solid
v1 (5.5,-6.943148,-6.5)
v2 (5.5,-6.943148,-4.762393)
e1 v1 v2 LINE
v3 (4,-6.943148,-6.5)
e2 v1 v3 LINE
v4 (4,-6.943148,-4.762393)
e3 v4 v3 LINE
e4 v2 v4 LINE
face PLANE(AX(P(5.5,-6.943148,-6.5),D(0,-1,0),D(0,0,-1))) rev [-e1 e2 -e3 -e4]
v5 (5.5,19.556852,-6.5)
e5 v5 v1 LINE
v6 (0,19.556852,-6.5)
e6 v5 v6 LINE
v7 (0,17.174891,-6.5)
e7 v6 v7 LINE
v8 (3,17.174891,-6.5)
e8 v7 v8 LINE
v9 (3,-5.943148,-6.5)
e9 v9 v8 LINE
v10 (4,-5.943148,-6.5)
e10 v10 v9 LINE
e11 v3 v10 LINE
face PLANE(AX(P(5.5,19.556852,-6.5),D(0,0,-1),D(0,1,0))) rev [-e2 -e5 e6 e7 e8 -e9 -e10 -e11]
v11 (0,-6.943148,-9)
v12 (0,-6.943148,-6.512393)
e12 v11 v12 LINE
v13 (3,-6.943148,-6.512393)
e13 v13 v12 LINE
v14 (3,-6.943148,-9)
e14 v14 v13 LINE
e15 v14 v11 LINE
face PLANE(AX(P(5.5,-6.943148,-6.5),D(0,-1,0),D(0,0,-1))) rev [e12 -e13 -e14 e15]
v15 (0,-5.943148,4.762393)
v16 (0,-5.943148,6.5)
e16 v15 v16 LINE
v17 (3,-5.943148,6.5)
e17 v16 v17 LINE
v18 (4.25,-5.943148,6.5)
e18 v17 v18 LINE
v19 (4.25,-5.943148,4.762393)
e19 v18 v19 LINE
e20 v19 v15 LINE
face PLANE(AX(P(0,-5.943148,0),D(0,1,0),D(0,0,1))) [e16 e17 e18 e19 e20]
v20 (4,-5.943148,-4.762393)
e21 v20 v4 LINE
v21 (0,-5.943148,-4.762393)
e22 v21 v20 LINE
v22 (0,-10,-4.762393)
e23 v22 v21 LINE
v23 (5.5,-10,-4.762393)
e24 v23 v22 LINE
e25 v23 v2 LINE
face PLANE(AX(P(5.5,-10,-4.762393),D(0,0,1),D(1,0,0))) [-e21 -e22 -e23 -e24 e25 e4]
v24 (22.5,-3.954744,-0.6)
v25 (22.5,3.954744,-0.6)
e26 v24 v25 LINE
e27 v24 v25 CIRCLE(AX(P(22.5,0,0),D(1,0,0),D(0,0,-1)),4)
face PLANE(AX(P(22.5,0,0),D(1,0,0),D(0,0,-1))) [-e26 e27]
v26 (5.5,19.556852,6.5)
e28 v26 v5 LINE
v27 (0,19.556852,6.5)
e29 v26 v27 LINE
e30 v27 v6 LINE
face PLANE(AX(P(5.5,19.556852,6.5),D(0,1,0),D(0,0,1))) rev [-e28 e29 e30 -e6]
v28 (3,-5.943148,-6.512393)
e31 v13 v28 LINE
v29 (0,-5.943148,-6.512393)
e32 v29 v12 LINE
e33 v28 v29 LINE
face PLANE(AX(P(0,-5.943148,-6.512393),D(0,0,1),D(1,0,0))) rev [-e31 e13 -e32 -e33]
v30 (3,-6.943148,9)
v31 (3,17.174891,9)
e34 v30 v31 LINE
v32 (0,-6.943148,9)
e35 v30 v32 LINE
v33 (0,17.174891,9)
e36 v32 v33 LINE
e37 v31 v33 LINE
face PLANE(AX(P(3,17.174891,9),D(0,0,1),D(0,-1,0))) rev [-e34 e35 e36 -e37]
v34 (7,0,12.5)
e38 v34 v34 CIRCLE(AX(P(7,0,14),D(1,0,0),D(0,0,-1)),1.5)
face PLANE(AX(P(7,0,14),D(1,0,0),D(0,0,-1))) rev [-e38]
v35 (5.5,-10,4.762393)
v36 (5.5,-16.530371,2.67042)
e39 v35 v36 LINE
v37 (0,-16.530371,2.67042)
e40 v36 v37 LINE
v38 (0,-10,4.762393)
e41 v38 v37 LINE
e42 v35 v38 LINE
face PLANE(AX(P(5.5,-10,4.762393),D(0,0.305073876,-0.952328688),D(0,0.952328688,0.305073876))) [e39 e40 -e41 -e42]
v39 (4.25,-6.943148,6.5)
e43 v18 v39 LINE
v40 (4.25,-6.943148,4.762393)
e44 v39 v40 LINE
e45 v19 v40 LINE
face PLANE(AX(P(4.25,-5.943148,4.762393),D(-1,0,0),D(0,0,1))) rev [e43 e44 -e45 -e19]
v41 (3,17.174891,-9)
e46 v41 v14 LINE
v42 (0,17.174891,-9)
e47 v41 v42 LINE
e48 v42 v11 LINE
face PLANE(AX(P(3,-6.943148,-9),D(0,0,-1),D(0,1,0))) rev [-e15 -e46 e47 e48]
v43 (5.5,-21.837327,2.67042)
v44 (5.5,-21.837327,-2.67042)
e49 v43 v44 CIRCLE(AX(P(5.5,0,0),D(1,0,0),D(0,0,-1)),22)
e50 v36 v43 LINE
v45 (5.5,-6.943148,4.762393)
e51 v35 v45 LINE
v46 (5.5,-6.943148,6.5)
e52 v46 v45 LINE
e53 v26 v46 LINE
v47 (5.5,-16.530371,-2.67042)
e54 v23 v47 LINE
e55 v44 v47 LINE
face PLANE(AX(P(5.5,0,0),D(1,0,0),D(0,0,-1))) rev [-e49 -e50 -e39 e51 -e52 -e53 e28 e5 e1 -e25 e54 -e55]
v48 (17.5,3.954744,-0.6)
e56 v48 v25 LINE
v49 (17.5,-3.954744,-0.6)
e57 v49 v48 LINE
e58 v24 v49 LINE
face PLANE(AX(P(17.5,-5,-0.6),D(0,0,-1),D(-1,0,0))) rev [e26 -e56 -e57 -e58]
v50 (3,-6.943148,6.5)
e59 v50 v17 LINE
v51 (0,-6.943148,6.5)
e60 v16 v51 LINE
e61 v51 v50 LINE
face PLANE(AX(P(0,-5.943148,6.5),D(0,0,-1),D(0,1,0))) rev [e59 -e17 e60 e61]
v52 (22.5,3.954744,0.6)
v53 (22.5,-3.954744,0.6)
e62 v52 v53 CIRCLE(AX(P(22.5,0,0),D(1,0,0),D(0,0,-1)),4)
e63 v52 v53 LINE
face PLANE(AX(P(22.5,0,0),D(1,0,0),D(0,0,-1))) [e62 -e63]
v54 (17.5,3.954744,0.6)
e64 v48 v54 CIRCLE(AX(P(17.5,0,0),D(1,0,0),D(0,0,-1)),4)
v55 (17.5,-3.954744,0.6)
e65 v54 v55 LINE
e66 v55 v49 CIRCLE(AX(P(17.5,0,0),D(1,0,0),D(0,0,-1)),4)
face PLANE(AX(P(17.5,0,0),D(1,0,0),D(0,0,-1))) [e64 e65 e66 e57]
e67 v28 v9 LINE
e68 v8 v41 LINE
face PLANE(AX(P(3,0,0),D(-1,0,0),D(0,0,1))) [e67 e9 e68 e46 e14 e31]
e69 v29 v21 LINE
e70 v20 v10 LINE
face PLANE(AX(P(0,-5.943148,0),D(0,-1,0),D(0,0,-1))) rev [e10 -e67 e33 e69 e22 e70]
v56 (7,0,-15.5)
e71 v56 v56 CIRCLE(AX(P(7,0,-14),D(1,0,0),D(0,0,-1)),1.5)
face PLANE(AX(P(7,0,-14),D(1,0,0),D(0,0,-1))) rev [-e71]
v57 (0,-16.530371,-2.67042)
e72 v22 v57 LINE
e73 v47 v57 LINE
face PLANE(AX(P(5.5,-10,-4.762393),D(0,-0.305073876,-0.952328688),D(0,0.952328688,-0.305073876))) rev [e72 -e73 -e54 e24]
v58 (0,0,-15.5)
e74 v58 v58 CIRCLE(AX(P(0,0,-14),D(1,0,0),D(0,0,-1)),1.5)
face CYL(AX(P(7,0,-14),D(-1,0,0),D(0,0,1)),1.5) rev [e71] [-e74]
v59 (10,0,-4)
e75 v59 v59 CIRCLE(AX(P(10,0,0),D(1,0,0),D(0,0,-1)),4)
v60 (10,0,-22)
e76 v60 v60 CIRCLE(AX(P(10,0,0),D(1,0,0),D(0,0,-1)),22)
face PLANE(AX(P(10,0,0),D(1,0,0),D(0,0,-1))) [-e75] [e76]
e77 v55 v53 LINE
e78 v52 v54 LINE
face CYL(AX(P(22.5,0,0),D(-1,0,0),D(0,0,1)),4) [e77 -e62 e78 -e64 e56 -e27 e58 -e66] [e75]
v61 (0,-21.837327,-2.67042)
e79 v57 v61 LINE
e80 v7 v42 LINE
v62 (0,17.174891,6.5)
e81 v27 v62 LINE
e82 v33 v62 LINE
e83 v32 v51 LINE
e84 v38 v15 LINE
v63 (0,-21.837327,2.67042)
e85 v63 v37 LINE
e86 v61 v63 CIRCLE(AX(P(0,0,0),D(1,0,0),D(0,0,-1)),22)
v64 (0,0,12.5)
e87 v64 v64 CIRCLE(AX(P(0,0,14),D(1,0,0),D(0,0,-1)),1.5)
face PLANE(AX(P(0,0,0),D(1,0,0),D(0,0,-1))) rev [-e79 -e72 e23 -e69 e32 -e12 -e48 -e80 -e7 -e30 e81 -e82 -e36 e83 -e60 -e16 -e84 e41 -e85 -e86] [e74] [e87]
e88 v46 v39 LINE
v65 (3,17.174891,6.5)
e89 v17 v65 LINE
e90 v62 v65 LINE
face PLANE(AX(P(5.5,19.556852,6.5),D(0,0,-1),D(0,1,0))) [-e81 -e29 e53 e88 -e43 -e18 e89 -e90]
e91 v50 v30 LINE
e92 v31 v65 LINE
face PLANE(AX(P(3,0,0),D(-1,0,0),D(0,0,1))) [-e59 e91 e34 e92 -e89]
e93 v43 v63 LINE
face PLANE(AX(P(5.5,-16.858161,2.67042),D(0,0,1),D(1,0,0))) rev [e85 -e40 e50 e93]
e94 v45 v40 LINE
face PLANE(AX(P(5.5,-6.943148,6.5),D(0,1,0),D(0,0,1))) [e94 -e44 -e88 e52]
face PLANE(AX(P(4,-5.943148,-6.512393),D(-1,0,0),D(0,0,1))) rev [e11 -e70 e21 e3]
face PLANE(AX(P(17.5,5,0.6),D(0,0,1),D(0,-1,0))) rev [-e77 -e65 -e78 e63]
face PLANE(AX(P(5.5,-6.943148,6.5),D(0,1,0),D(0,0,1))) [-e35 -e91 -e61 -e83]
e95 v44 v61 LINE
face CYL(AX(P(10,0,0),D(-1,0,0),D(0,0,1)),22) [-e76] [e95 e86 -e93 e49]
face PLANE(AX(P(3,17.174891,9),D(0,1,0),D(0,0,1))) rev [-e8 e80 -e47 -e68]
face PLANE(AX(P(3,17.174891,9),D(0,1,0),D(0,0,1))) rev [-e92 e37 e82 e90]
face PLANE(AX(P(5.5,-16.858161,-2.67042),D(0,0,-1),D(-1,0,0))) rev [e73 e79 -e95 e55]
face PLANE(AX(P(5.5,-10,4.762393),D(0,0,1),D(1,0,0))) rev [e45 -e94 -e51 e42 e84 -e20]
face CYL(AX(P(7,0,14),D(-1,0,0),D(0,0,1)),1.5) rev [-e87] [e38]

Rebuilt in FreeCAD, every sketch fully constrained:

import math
import FreeCAD as App
import Part
import Sketcher
from FreeCAD import Vector
Q = App.Units.Quantity


def add_polygon(sketch, points):
    """Adds a closed chain of lines whose ends are joined by coincident constraints."""
    first, n = sketch.GeometryCount, len(points)
    for a, b in zip(points, points[1:] + points[:1]):
        sketch.addGeometry(Part.LineSegment(App.Vector(*a, 0), App.Vector(*b, 0)), False)
    for i in range(n):
        sketch.addConstraint(Sketcher.Constraint("Coincident", first + i, 2, first + (i + 1) % n, 1))

doc = App.newDocument("Part")
body = doc.addObject("PartDesign::Body", "Body")

# Sketch on YZ plane
sketch1 = body.newObject("Sketcher::SketchObject", "Sketch")
sketch1.AttachmentSupport = (doc.getObject("YZ_Plane"), [""])
sketch1.MapMode = "FlatFace"
sketch1.addGeometry(Part.Circle(Vector(0, 0, 0), Vector(0, 0, 1), 22), False)
sketch1.addConstraint([
    Sketcher.Constraint("Coincident", 0, 3, -1, 1),
    Sketcher.Constraint("Diameter", 0, Q("44 mm")),
])
pad1 = body.newObject("PartDesign::Pad", "Pad")
pad1.Profile = sketch1
pad1.Length = 10

# Sketch on YZ plane
sketch2 = body.newObject("Sketcher::SketchObject", "Sketch001")
sketch2.AttachmentSupport = (doc.getObject("YZ_Plane"), [""])
sketch2.MapMode = "FlatFace"
sketch2.addGeometry([
    Part.LineSegment(Vector(-10, 4.8, 0), Vector(-16.5, 2.7, 0)),  # 0
    Part.LineSegment(Vector(-16.5, 2.7, 0), Vector(-21.8, 2.7, 0)),  # 1
    Part.ArcOfCircle(Part.Circle(Vector(0, 0, 0), Vector(0, 0, 1), 22), math.radians(173.03), math.radians(177.39)),  # 2
    Part.LineSegment(Vector(-22, 1, 0), Vector(-25.2, 0, 0)),  # 3
    Part.LineSegment(Vector(-25.2, 0, 0), Vector(-22, -1, 0)),  # 4
    Part.ArcOfCircle(Part.Circle(Vector(0, 0, 0), Vector(0, 0, 1), 22), math.radians(-177.39), math.radians(-173.03)),  # 5
    Part.LineSegment(Vector(-21.8, -2.7, 0), Vector(-16.5, -2.7, 0)),  # 6
    Part.LineSegment(Vector(-16.5, -2.7, 0), Vector(-10, -4.8, 0)),  # 7
    Part.LineSegment(Vector(-10, -4.8, 0), Vector(-6.9, -4.8, 0)),  # 8
    Part.LineSegment(Vector(-6.9, -4.8, 0), Vector(-6.9, -6.5, 0)),  # 9
    Part.LineSegment(Vector(-6.9, -6.5, 0), Vector(19.6, -6.5, 0)),  # 10
    Part.LineSegment(Vector(19.6, -6.5, 0), Vector(19.6, 6.5, 0)),  # 11
    Part.LineSegment(Vector(19.6, 6.5, 0), Vector(-6.9, 6.5, 0)),  # 12
    Part.LineSegment(Vector(-6.9, 6.5, 0), Vector(-6.9, 4.8, 0)),  # 13
    Part.LineSegment(Vector(-6.9, 4.8, 0), Vector(-10, 4.8, 0)),  # 14
], False)
sketch2.addConstraint([
    Sketcher.Constraint("Coincident", 0, 2, 1, 1),
    Sketcher.Constraint("Coincident", 1, 2, 2, 1),
    Sketcher.Constraint("Coincident", 2, 2, 3, 1),
    Sketcher.Constraint("Coincident", 3, 2, 4, 1),
    Sketcher.Constraint("Coincident", 4, 2, 5, 1),
    Sketcher.Constraint("Coincident", 5, 2, 6, 1),
    Sketcher.Constraint("Coincident", 6, 2, 7, 1),
    Sketcher.Constraint("Coincident", 7, 2, 8, 1),
    Sketcher.Constraint("Coincident", 8, 2, 9, 1),
    Sketcher.Constraint("Coincident", 9, 2, 10, 1),
    Sketcher.Constraint("Coincident", 10, 2, 11, 1),
    Sketcher.Constraint("Coincident", 11, 2, 12, 1),
    Sketcher.Constraint("Coincident", 12, 2, 13, 1),
    Sketcher.Constraint("Coincident", 13, 2, 14, 1),
    Sketcher.Constraint("Coincident", 14, 2, 0, 1),
    Sketcher.Constraint("Horizontal", 1),
    Sketcher.Constraint("Horizontal", 6),
    Sketcher.Constraint("Horizontal", 8),
    Sketcher.Constraint("Vertical", 9),
    Sketcher.Constraint("Horizontal", 10),
    Sketcher.Constraint("Vertical", 11),
    Sketcher.Constraint("Horizontal", 12),
    Sketcher.Constraint("Vertical", 13),
    Sketcher.Constraint("Horizontal", 14),
    Sketcher.Constraint("Coincident", 2, 3, -1, 1),
    Sketcher.Constraint("Coincident", 5, 3, -1, 1),
    Sketcher.Constraint("Equal", 2, 5),
    Sketcher.Constraint("Symmetric", 0, 2, 6, 2, -1),
    Sketcher.Constraint("Symmetric", 9, 2, 12, 2, -1),
    Sketcher.Constraint("Symmetric", 7, 2, 14, 2, -1),
    Sketcher.Constraint("PointOnObject", 3, 2, -1),
    Sketcher.Constraint("Vertical", 2, 2, 4, 2),
    Sketcher.Constraint("Radius", 2, Q("22 mm")),
    Sketcher.Constraint("DistanceY", 11, 1, 11, 2, Q("13 mm")),
    Sketcher.Constraint("Angle", 3, Q("-163 deg")),
    Sketcher.Constraint("DistanceX", 10, 1, 10, 2, Q("26.5 mm")),
    Sketcher.Constraint("DistanceX", 7, 2, -1, 1, Q("10 mm")),
    Sketcher.Constraint("DistanceX", 3, 2, -1, 1, Q("25.25 mm")),
    Sketcher.Constraint("DistanceX", 8, 1, 8, 2, Q("3.056852 mm")),
    Sketcher.Constraint("DistanceX", 1, 2, 1, 1, Q("5.306956 mm")),
    Sketcher.Constraint("DistanceY", 9, 2, 9, 1, Q("1.737607 mm")),
    Sketcher.Constraint("DistanceX", 0, 2, -1, 1, Q("16.530371 mm")),
])
pocket1 = body.newObject("PartDesign::Pocket", "Pocket")
pocket1.Profile = sketch2
pocket1.Length = 5.5
pocket1.Reversed = True

# Sketch on YZ plane
sketch3 = body.newObject("Sketcher::SketchObject", "Sketch002")
sketch3.AttachmentSupport = (doc.getObject("YZ_Plane"), [""])
sketch3.MapMode = "FlatFace"
add_polygon(sketch3, [(17, -9), (-7, -9), (-7, 9), (17, 9)])  # lines 0-3
sketch3.addConstraint([
    Sketcher.Constraint("Horizontal", 0),
    Sketcher.Constraint("Vertical", 1),
    Sketcher.Constraint("Horizontal", 2),
    Sketcher.Constraint("Vertical", 3),
    Sketcher.Constraint("DistanceY", 1, 1, 1, 2, Q("18 mm")),
    Sketcher.Constraint("DistanceY", 0, 2, -1, 1, Q("9 mm")),
    Sketcher.Constraint("DistanceX", 0, 2, 0, 1, Q("24.118039 mm")),
    Sketcher.Constraint("DistanceX", 0, 2, -1, 1, Q("6.943148 mm")),
])
pocket2 = body.newObject("PartDesign::Pocket", "Pocket001")
pocket2.Profile = sketch3
pocket2.Length = 3
pocket2.Reversed = True

# Sketch on YZ plane
sketch4 = body.newObject("Sketcher::SketchObject", "Sketch003")
sketch4.AttachmentSupport = (doc.getObject("YZ_Plane"), [""])
sketch4.MapMode = "FlatFace"
sketch4.AttachmentOffset = App.Placement(Vector(0, 0, 10), App.Rotation())
sketch4.addGeometry(Part.Circle(Vector(0, 0, 0), Vector(0, 0, 1), 4), False)
sketch4.addConstraint([
    Sketcher.Constraint("Coincident", 0, 3, -1, 1),
    Sketcher.Constraint("Diameter", 0, Q("8 mm")),
])
pad2 = body.newObject("PartDesign::Pad", "Pad001")
pad2.Profile = sketch4
pad2.Length = 12.5

# Sketch on YZ plane
sketch5 = body.newObject("Sketcher::SketchObject", "Sketch004")
sketch5.AttachmentSupport = (doc.getObject("YZ_Plane"), [""])
sketch5.MapMode = "FlatFace"
sketch5.AttachmentOffset = App.Placement(Vector(0, 0, 22.5), App.Rotation())
add_polygon(sketch5, [(5, 0.6), (-5, 0.6), (-5, -0.6), (5, -0.6)])  # lines 0-3
sketch5.addConstraint([
    Sketcher.Constraint("Horizontal", 0),
    Sketcher.Constraint("Vertical", 1),
    Sketcher.Constraint("Horizontal", 2),
    Sketcher.Constraint("Vertical", 3),
    Sketcher.Constraint("Symmetric", 0, 2, 2, 2, -1, 1),
    Sketcher.Constraint("DistanceX", 0, 2, 0, 1, Q("10 mm")),
    Sketcher.Constraint("DistanceY", 1, 2, 1, 1, Q("1.2 mm")),
])
pocket3 = body.newObject("PartDesign::Pocket", "Pocket002")
pocket3.Profile = sketch5
pocket3.Length = 5

# Sketch on XZ plane
sketch6 = body.newObject("Sketcher::SketchObject", "Sketch005")
sketch6.AttachmentSupport = (doc.getObject("XZ_Plane"), [""])
sketch6.MapMode = "FlatFace"
sketch6.AttachmentOffset = App.Placement(Vector(0, 0, 6.943148), App.Rotation())
add_polygon(sketch6, [(0, -6.5), (0, -4.8), (4, -4.8), (4, -6.5)])  # lines 0-3
sketch6.addConstraint([
    Sketcher.Constraint("Vertical", 0),
    Sketcher.Constraint("Horizontal", 1),
    Sketcher.Constraint("Vertical", 2),
    Sketcher.Constraint("Horizontal", 3),
    Sketcher.Constraint("PointOnObject", 0, 2, -2),
    Sketcher.Constraint("DistanceX", 1, 1, 1, 2, Q("4 mm")),
    Sketcher.Constraint("DistanceY", 0, 1, 0, 2, Q("1.75 mm")),
    Sketcher.Constraint("DistanceY", 0, 2, -1, 1, Q("4.762393 mm")),
])
pad3 = body.newObject("PartDesign::Pad", "Pad002")
pad3.Profile = sketch6
pad3.Length = 1
pad3.Reversed = True

# Sketch on XZ plane
sketch7 = body.newObject("Sketcher::SketchObject", "Sketch006")
sketch7.AttachmentSupport = (doc.getObject("XZ_Plane"), [""])
sketch7.MapMode = "FlatFace"
sketch7.AttachmentOffset = App.Placement(Vector(0, 0, 6.943148), App.Rotation())
add_polygon(sketch7, [(0, 4.8), (0, 6.5), (4.2, 6.5), (4.2, 4.8)])  # lines 0-3
sketch7.addConstraint([
    Sketcher.Constraint("Vertical", 0),
    Sketcher.Constraint("Horizontal", 1),
    Sketcher.Constraint("Vertical", 2),
    Sketcher.Constraint("Horizontal", 3),
    Sketcher.Constraint("PointOnObject", 0, 2, -2),
    Sketcher.Constraint("DistanceX", 1, 1, 1, 2, Q("4.25 mm")),
    Sketcher.Constraint("DistanceY", -1, 1, 0, 2, Q("6.5 mm")),
    Sketcher.Constraint("DistanceY", 0, 1, 0, 2, Q("1.737607 mm")),
])
pad4 = body.newObject("PartDesign::Pad", "Pad003")
pad4.Profile = sketch7
pad4.Length = 1
pad4.Reversed = True

# Sketch on YZ plane
sketch8 = body.newObject("Sketcher::SketchObject", "Sketch007")
sketch8.AttachmentSupport = (doc.getObject("YZ_Plane"), [""])
sketch8.MapMode = "FlatFace"
sketch8.addGeometry([
    Part.Circle(Vector(0, 14, 0), Vector(0, 0, 1), 1.5),
    Part.Circle(Vector(0, -14, 0), Vector(0, 0, 1), 1.5),
], False)
sketch8.addConstraint([
    Sketcher.Constraint("Equal", 0, 1),
    Sketcher.Constraint("Symmetric", 0, 3, 1, 3, -1, 1),
    Sketcher.Constraint("PointOnObject", 0, 3, -2),
    Sketcher.Constraint("Diameter", 0, Q("3 mm")),
    Sketcher.Constraint("DistanceY", -1, 1, 0, 3, Q("14 mm")),
])
pocket4 = body.newObject("PartDesign::Pocket", "Pocket003")
pocket4.Profile = sketch8
pocket4.Length = 7
pocket4.Reversed = True

doc.recompute()
